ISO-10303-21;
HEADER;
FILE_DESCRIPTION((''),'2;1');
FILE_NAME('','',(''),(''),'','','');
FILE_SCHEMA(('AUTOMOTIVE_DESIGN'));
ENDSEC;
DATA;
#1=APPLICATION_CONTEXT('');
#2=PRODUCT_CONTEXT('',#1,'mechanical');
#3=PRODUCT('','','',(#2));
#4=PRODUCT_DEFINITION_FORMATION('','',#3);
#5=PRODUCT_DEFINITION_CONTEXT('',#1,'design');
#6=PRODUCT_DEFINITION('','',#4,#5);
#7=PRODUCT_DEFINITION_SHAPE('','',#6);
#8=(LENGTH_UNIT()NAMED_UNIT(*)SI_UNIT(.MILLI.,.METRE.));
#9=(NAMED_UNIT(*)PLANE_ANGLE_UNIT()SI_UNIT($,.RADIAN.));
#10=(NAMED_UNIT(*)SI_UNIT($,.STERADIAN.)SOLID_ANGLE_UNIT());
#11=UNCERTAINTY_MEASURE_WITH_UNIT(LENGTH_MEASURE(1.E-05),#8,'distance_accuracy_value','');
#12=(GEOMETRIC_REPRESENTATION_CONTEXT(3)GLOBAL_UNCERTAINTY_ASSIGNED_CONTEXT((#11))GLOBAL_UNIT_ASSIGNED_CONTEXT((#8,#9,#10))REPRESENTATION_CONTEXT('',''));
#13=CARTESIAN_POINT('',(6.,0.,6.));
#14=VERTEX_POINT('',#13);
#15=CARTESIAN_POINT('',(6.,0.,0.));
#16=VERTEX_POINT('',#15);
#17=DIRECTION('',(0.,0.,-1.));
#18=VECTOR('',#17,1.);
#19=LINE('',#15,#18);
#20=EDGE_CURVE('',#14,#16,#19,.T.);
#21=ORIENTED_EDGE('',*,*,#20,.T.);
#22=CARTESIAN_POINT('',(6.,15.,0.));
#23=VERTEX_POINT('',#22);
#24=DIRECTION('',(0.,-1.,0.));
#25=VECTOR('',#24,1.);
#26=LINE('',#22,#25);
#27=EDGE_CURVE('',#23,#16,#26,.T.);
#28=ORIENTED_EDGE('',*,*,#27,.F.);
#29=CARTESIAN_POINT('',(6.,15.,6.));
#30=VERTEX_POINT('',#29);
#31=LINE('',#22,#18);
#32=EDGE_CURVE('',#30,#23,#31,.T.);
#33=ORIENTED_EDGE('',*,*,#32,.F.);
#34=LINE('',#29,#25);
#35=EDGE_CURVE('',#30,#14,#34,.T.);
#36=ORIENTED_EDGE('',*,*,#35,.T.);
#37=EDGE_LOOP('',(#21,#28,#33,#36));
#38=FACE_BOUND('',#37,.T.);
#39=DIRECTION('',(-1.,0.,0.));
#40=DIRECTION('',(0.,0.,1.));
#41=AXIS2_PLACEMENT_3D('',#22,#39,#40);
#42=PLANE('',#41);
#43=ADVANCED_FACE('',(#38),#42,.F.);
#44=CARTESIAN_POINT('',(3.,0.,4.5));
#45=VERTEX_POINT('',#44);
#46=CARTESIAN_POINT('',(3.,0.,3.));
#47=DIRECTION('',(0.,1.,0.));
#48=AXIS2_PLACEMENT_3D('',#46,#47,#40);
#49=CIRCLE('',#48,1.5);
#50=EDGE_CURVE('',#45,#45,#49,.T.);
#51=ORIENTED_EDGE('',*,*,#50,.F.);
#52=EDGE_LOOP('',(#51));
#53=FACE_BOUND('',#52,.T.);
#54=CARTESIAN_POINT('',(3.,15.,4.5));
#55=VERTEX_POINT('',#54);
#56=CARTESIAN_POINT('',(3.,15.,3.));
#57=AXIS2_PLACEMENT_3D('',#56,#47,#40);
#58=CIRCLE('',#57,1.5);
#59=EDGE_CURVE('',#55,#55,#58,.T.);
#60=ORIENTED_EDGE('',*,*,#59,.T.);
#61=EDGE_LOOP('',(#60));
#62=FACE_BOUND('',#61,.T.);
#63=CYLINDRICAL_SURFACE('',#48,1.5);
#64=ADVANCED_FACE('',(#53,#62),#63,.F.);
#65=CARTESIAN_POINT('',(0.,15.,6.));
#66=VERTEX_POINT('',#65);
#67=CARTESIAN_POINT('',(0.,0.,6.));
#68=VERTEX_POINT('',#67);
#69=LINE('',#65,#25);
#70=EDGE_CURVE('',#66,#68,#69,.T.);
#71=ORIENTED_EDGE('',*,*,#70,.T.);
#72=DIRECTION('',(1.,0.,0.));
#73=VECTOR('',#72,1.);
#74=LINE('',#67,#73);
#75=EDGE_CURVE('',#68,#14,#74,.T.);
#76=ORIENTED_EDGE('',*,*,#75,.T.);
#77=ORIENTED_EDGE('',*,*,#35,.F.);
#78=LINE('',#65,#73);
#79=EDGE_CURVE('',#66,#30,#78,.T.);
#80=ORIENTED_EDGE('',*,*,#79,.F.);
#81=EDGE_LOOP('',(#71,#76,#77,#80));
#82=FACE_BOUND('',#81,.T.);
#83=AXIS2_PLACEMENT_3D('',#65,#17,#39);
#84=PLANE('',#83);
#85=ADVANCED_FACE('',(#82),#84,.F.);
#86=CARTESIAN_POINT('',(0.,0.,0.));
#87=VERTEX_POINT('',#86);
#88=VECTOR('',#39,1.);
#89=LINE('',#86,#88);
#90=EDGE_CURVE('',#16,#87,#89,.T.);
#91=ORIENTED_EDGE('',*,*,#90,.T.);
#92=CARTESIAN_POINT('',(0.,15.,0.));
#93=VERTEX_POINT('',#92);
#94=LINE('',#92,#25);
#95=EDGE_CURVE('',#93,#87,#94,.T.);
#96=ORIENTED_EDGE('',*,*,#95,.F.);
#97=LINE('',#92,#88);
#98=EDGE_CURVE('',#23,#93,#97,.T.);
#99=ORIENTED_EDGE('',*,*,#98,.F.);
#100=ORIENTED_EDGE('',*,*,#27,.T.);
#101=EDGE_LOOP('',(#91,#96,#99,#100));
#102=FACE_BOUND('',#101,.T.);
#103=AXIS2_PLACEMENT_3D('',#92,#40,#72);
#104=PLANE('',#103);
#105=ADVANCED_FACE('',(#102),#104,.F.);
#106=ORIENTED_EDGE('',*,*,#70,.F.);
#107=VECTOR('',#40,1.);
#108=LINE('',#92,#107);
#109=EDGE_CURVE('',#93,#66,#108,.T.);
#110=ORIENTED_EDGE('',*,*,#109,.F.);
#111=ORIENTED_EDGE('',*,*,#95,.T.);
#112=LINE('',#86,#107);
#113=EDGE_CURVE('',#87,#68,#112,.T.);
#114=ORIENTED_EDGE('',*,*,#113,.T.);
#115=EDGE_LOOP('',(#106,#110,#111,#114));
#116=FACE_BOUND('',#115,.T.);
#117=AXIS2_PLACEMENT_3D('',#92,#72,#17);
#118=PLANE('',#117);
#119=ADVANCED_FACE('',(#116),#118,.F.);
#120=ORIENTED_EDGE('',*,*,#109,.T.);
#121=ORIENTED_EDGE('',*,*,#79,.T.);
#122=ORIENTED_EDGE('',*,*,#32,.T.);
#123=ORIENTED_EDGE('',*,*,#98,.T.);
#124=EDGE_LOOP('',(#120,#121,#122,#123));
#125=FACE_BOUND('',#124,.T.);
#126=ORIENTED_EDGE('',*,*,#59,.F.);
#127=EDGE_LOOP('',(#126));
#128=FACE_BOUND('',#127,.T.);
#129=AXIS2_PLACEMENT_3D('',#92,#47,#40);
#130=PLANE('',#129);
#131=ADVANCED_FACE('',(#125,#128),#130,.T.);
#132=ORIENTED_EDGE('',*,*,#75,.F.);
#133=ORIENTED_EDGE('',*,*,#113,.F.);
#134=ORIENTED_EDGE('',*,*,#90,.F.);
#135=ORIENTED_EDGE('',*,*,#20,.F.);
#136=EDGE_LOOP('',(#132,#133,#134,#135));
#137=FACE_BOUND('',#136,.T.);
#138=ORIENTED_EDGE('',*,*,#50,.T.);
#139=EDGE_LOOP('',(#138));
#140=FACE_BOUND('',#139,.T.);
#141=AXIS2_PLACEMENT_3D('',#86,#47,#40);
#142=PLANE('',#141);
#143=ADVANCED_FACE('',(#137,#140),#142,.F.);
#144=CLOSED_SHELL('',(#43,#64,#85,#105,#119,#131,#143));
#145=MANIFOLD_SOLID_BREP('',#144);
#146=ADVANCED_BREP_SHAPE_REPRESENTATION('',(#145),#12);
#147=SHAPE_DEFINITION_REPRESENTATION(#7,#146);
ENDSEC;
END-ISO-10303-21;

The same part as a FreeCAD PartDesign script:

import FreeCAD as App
import Part
import Sketcher

doc = App.newDocument("Part")
params = doc.addObject("Spreadsheet::Sheet", "Params")
for row, (alias, value) in enumerate([
    ("sketch1_width", "6 mm"),
    ("pad1_length", "15 mm"),
    ("sketch2_diameter", "3 mm"),
], start=1):
    params.set(f"A{row}", alias)
    params.set(f"B{row}", "=" + value)
    params.setAlias(f"B{row}", alias)

body = doc.addObject("PartDesign::Body", "Body")

sketch1 = body.newObject("Sketcher::SketchObject", "Sketch")
sketch1.AttachmentSupport = (doc.getObject("XZ_Plane"), [""])
sketch1.MapMode = "FlatFace"
sketch1.addGeometry([
    Part.LineSegment(App.Vector(0, 0, 0), App.Vector(0, 6, 0)),
    Part.LineSegment(App.Vector(0, 6, 0), App.Vector(6, 6, 0)),
    Part.LineSegment(App.Vector(6, 6, 0), App.Vector(6, 0, 0)),
    Part.LineSegment(App.Vector(6, 0, 0), App.Vector(0, 0, 0)),
], False)
sketch1.addConstraint([
    Sketcher.Constraint("Coincident", 0, 2, 1, 1),
    Sketcher.Constraint("Coincident", 1, 2, 2, 1),
    Sketcher.Constraint("Coincident", 2, 2, 3, 1),
    Sketcher.Constraint("Coincident", 3, 2, 0, 1),
    Sketcher.Constraint("Vertical", 0),
    Sketcher.Constraint("Horizontal", 1),
    Sketcher.Constraint("Vertical", 2),
    Sketcher.Constraint("Horizontal", 3),
    Sketcher.Constraint("Coincident", 3, 2, -1, 1),
    Sketcher.Constraint("Equal", 3, 0),
    Sketcher.Constraint("DistanceX", 1, 1, 1, 2, 6.0),
])
sketch1.setExpression("Constraints[10]", "Params.sketch1_width")
pad1 = body.newObject("PartDesign::Pad", "Pad")
pad1.Profile = sketch1
pad1.setExpression("Length", "Params.pad1_length")
pad1.Reversed = True

sketch2 = body.newObject("Sketcher::SketchObject", "Sketch001")
sketch2.AttachmentSupport = (doc.getObject("XZ_Plane"), [""])
sketch2.MapMode = "FlatFace"
sketch2.AttachmentOffset = App.Placement(App.Vector(0, 0, -15), App.Rotation())
sketch2.addGeometry(Part.Circle(App.Vector(3, 3, 0), App.Vector(0, 0, 1), 1.5), False)
sketch2.addConstraint([
    Sketcher.Constraint("Diameter", 0, 3.0),
    Sketcher.Constraint("DistanceX", -1, 1, 0, 3, 3.0),
    Sketcher.Constraint("DistanceY", -1, 1, 0, 3, 3.0),
])
sketch2.setExpression("Constraints[0]", "Params.sketch2_diameter")
pocket1 = body.newObject("PartDesign::Pocket", "Pocket")
pocket1.Profile = sketch2
pocket1.Type = "ThroughAll"
pocket1.Reversed = True

doc.recompute()
